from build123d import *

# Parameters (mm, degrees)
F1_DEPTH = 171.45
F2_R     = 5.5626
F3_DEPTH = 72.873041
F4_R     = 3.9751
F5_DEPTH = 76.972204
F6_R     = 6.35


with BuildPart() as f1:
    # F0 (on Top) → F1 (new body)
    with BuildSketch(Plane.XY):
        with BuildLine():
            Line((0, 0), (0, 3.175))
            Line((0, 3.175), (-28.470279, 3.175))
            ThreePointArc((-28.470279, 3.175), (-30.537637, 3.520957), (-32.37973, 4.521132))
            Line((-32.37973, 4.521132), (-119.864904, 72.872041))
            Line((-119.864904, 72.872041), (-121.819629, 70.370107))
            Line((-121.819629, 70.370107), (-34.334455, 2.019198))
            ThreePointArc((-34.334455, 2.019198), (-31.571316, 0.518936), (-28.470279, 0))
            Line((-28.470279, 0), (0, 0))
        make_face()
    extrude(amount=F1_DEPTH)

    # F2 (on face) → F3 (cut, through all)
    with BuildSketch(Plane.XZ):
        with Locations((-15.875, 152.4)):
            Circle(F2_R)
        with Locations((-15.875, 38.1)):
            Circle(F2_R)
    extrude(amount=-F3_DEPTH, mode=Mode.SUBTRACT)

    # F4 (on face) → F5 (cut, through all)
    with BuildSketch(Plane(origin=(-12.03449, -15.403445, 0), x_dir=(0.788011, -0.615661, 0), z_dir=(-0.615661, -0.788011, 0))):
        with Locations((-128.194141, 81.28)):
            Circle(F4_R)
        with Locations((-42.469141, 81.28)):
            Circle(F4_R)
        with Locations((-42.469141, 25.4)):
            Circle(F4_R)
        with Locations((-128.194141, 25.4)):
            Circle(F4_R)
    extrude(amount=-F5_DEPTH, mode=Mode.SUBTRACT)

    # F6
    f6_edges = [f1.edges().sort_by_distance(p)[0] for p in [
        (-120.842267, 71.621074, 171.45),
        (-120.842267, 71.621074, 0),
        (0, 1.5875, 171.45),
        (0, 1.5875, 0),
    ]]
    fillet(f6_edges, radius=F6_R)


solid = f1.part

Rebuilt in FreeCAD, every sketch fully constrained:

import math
import FreeCAD as App
import Part
import Sketcher
Q = App.Units.Quantity


def edges_at(feature, points):
    """Names of the edges that pass closest to the given points."""
    edges = feature.Shape.Edges
    near = lambda p: min(range(len(edges)), key=lambda i: edges[i].distToShape(Part.Vertex(*p))[0])
    return sorted({f"Edge{near(p) + 1}" for p in points})

doc = App.newDocument("Part")
body = doc.addObject("PartDesign::Body", "Body")

# Sketch on XY plane
sketch1 = doc.addObject("Sketcher::SketchObject", "Sketch")
body.addObject(sketch1)
sketch1.AttachmentSupport = (doc.XY_Plane, [""])
sketch1.MapMode = "FlatFace"
sketch1.addGeometry(Part.LineSegment(App.Vector(0, 0, 0), App.Vector(0, 3.2, 0)), False)
sketch1.addGeometry(Part.LineSegment(App.Vector(0, 3.2, 0), App.Vector(-28.5, 3.2, 0)), False)
sketch1.addGeometry(Part.ArcOfCircle(Part.Circle(App.Vector(-28.5, 9.5, 0), App.Vector(0, 0, 1), 6.3), math.radians(-128), math.radians(-90)), False)
sketch1.addGeometry(Part.LineSegment(App.Vector(-32.4, 4.5, 0), App.Vector(-119.9, 72.9, 0)), False)
sketch1.addGeometry(Part.LineSegment(App.Vector(-119.9, 72.9, 0), App.Vector(-121.8, 70.4, 0)), False)
sketch1.addGeometry(Part.LineSegment(App.Vector(-121.8, 70.4, 0), App.Vector(-34.3, 2, 0)), False)
sketch1.addGeometry(Part.ArcOfCircle(Part.Circle(App.Vector(-28.5, 9.5, 0), App.Vector(0, 0, 1), 9.5), math.radians(-128), math.radians(-90)), False)
sketch1.addGeometry(Part.LineSegment(App.Vector(-28.5, 0, 0), App.Vector(0, 0, 0)), False)
sketch1.addConstraint(Sketcher.Constraint("Coincident", 0, 2, 1, 1))
sketch1.addConstraint(Sketcher.Constraint("Tangent", 1, 2, 2, 2))
sketch1.addConstraint(Sketcher.Constraint("Tangent", 2, 1, 3, 1))
sketch1.addConstraint(Sketcher.Constraint("Coincident", 3, 2, 4, 1))
sketch1.addConstraint(Sketcher.Constraint("Coincident", 4, 2, 5, 1))
sketch1.addConstraint(Sketcher.Constraint("Tangent", 5, 2, 6, 1))
sketch1.addConstraint(Sketcher.Constraint("Tangent", 6, 2, 7, 1))
sketch1.addConstraint(Sketcher.Constraint("Coincident", 7, 2, 0, 1))
sketch1.addConstraint(Sketcher.Constraint("Vertical", 0))
sketch1.addConstraint(Sketcher.Constraint("Horizontal", 1))
sketch1.addConstraint(Sketcher.Constraint("Horizontal", 7))
sketch1.addConstraint(Sketcher.Constraint("Coincident", 7, 2, -1, 1))
sketch1.addConstraint(Sketcher.Constraint("Coincident", 6, 3, 2, 3))
sketch1.addConstraint(Sketcher.Constraint("Perpendicular", 3, 4))
sketch1.addConstraint(Sketcher.Constraint("Perpendicular", 4, 5))
sketch1.addConstraint(Sketcher.Constraint("Radius", 2, Q("0.25 in")))
sketch1.addConstraint(Sketcher.Constraint("Angle", 3, Q("142 deg")))
sketch1.addConstraint(Sketcher.Constraint("Radius", 6, Q("0.3750002 in")))
sketch1.addConstraint(Sketcher.Constraint("DistanceX", 1, 2, 1, 1, 28.470279))
sketch1.addConstraint(Sketcher.Constraint("DistanceX", 4, 2, 2, 1, 89.439899))
pad1 = doc.addObject("PartDesign::Pad", "Pad")
body.addObject(pad1)
pad1.Profile = sketch1
pad1.Length = Q("6.75 in")

# Sketch on XZ plane
sketch2 = doc.addObject("Sketcher::SketchObject", "Sketch001")
body.addObject(sketch2)
sketch2.AttachmentSupport = (doc.XZ_Plane, [""])
sketch2.MapMode = "FlatFace"
sketch2.addGeometry(Part.Circle(App.Vector(-16, 152, 0), App.Vector(0, 0, 1), 6), False)
sketch2.addGeometry(Part.Circle(App.Vector(-16, 38, 0), App.Vector(0, 0, 1), 6), False)
sketch2.addConstraint(Sketcher.Constraint("Equal", 0, 1))
sketch2.addConstraint(Sketcher.Constraint("Vertical", 0, 3, 1, 3))
sketch2.addConstraint(Sketcher.Constraint("Diameter", 0, Q("0.438 in")))
sketch2.addConstraint(Sketcher.Constraint("DistanceY", -1, 1, 0, 3, Q("6 in")))
sketch2.addConstraint(Sketcher.Constraint("DistanceY", -1, 1, 1, 3, Q("1.5 in")))
sketch2.addConstraint(Sketcher.Constraint("DistanceX", 0, 3, -1, 1, Q("0.625 in")))
pocket1 = doc.addObject("PartDesign::Pocket", "Pocket")
body.addObject(pocket1)
pocket1.Profile = sketch2
pocket1.Type = "ThroughAll"

# Sketch on an angled plane
sketch3 = doc.addObject("Sketcher::SketchObject", "Sketch002")
body.addObject(sketch3)
sketch3.Placement = App.Placement(App.Vector(-12.03449, -15.403445, 0), App.Rotation(App.Vector(0.788011078, -0.615661061, 0), App.Vector(0, 0, 1.000000001), App.Vector(-0.615661061, -0.788011078, 0), "ZXY"))
sketch3.addGeometry(Part.Circle(App.Vector(-128.2, 81.3, 0), App.Vector(0, 0, 1), 4), False)
sketch3.addGeometry(Part.Circle(App.Vector(-42.5, 81.3, 0), App.Vector(0, 0, 1), 4), False)
sketch3.addGeometry(Part.Circle(App.Vector(-42.5, 25.4, 0), App.Vector(0, 0, 1), 4), False)
sketch3.addGeometry(Part.Circle(App.Vector(-128.2, 25.4, 0), App.Vector(0, 0, 1), 4), False)
sketch3.addConstraint(Sketcher.Constraint("Equal", 0, 1))
sketch3.addConstraint(Sketcher.Constraint("Equal", 1, 2))
sketch3.addConstraint(Sketcher.Constraint("Equal", 2, 3))
sketch3.addConstraint(Sketcher.Constraint("Horizontal", 0, 3, 1, 3))
sketch3.addConstraint(Sketcher.Constraint("Horizontal", 2, 3, 3, 3))
sketch3.addConstraint(Sketcher.Constraint("Vertical", 1, 3, 2, 3))
sketch3.addConstraint(Sketcher.Constraint("Vertical", 0, 3, 3, 3))
sketch3.addConstraint(Sketcher.Constraint("Diameter", 0, Q("0.313 in")))
sketch3.addConstraint(Sketcher.Constraint("DistanceY", -1, 1, 2, 3, Q("1 in")))
sketch3.addConstraint(Sketcher.Constraint("DistanceY", -1, 1, 0, 3, Q("3.2 in")))
sketch3.addConstraint(Sketcher.Constraint("DistanceX", 0, 3, 1, 3, Q("3.375 in")))
sketch3.addConstraint(Sketcher.Constraint("DistanceX", 0, 3, -1, 1, 128.194141))
pocket2 = doc.addObject("PartDesign::Pocket", "Pocket001")
body.addObject(pocket2)
pocket2.Profile = sketch3
pocket2.Type = "ThroughAll"
doc.recompute()

fillet = doc.addObject("PartDesign::Fillet", "Fillet")
body.addObject(fillet)
fillet.Base = (pocket2, edges_at(pocket2, [
    (-120.842, 71.621, 171.45),
    (-120.842, 71.621, 0),
    (0, 1.587, 171.45),
    (0, 1.587, 0),
]))
fillet.Radius = Q("0.25 in")

doc.recompute()
